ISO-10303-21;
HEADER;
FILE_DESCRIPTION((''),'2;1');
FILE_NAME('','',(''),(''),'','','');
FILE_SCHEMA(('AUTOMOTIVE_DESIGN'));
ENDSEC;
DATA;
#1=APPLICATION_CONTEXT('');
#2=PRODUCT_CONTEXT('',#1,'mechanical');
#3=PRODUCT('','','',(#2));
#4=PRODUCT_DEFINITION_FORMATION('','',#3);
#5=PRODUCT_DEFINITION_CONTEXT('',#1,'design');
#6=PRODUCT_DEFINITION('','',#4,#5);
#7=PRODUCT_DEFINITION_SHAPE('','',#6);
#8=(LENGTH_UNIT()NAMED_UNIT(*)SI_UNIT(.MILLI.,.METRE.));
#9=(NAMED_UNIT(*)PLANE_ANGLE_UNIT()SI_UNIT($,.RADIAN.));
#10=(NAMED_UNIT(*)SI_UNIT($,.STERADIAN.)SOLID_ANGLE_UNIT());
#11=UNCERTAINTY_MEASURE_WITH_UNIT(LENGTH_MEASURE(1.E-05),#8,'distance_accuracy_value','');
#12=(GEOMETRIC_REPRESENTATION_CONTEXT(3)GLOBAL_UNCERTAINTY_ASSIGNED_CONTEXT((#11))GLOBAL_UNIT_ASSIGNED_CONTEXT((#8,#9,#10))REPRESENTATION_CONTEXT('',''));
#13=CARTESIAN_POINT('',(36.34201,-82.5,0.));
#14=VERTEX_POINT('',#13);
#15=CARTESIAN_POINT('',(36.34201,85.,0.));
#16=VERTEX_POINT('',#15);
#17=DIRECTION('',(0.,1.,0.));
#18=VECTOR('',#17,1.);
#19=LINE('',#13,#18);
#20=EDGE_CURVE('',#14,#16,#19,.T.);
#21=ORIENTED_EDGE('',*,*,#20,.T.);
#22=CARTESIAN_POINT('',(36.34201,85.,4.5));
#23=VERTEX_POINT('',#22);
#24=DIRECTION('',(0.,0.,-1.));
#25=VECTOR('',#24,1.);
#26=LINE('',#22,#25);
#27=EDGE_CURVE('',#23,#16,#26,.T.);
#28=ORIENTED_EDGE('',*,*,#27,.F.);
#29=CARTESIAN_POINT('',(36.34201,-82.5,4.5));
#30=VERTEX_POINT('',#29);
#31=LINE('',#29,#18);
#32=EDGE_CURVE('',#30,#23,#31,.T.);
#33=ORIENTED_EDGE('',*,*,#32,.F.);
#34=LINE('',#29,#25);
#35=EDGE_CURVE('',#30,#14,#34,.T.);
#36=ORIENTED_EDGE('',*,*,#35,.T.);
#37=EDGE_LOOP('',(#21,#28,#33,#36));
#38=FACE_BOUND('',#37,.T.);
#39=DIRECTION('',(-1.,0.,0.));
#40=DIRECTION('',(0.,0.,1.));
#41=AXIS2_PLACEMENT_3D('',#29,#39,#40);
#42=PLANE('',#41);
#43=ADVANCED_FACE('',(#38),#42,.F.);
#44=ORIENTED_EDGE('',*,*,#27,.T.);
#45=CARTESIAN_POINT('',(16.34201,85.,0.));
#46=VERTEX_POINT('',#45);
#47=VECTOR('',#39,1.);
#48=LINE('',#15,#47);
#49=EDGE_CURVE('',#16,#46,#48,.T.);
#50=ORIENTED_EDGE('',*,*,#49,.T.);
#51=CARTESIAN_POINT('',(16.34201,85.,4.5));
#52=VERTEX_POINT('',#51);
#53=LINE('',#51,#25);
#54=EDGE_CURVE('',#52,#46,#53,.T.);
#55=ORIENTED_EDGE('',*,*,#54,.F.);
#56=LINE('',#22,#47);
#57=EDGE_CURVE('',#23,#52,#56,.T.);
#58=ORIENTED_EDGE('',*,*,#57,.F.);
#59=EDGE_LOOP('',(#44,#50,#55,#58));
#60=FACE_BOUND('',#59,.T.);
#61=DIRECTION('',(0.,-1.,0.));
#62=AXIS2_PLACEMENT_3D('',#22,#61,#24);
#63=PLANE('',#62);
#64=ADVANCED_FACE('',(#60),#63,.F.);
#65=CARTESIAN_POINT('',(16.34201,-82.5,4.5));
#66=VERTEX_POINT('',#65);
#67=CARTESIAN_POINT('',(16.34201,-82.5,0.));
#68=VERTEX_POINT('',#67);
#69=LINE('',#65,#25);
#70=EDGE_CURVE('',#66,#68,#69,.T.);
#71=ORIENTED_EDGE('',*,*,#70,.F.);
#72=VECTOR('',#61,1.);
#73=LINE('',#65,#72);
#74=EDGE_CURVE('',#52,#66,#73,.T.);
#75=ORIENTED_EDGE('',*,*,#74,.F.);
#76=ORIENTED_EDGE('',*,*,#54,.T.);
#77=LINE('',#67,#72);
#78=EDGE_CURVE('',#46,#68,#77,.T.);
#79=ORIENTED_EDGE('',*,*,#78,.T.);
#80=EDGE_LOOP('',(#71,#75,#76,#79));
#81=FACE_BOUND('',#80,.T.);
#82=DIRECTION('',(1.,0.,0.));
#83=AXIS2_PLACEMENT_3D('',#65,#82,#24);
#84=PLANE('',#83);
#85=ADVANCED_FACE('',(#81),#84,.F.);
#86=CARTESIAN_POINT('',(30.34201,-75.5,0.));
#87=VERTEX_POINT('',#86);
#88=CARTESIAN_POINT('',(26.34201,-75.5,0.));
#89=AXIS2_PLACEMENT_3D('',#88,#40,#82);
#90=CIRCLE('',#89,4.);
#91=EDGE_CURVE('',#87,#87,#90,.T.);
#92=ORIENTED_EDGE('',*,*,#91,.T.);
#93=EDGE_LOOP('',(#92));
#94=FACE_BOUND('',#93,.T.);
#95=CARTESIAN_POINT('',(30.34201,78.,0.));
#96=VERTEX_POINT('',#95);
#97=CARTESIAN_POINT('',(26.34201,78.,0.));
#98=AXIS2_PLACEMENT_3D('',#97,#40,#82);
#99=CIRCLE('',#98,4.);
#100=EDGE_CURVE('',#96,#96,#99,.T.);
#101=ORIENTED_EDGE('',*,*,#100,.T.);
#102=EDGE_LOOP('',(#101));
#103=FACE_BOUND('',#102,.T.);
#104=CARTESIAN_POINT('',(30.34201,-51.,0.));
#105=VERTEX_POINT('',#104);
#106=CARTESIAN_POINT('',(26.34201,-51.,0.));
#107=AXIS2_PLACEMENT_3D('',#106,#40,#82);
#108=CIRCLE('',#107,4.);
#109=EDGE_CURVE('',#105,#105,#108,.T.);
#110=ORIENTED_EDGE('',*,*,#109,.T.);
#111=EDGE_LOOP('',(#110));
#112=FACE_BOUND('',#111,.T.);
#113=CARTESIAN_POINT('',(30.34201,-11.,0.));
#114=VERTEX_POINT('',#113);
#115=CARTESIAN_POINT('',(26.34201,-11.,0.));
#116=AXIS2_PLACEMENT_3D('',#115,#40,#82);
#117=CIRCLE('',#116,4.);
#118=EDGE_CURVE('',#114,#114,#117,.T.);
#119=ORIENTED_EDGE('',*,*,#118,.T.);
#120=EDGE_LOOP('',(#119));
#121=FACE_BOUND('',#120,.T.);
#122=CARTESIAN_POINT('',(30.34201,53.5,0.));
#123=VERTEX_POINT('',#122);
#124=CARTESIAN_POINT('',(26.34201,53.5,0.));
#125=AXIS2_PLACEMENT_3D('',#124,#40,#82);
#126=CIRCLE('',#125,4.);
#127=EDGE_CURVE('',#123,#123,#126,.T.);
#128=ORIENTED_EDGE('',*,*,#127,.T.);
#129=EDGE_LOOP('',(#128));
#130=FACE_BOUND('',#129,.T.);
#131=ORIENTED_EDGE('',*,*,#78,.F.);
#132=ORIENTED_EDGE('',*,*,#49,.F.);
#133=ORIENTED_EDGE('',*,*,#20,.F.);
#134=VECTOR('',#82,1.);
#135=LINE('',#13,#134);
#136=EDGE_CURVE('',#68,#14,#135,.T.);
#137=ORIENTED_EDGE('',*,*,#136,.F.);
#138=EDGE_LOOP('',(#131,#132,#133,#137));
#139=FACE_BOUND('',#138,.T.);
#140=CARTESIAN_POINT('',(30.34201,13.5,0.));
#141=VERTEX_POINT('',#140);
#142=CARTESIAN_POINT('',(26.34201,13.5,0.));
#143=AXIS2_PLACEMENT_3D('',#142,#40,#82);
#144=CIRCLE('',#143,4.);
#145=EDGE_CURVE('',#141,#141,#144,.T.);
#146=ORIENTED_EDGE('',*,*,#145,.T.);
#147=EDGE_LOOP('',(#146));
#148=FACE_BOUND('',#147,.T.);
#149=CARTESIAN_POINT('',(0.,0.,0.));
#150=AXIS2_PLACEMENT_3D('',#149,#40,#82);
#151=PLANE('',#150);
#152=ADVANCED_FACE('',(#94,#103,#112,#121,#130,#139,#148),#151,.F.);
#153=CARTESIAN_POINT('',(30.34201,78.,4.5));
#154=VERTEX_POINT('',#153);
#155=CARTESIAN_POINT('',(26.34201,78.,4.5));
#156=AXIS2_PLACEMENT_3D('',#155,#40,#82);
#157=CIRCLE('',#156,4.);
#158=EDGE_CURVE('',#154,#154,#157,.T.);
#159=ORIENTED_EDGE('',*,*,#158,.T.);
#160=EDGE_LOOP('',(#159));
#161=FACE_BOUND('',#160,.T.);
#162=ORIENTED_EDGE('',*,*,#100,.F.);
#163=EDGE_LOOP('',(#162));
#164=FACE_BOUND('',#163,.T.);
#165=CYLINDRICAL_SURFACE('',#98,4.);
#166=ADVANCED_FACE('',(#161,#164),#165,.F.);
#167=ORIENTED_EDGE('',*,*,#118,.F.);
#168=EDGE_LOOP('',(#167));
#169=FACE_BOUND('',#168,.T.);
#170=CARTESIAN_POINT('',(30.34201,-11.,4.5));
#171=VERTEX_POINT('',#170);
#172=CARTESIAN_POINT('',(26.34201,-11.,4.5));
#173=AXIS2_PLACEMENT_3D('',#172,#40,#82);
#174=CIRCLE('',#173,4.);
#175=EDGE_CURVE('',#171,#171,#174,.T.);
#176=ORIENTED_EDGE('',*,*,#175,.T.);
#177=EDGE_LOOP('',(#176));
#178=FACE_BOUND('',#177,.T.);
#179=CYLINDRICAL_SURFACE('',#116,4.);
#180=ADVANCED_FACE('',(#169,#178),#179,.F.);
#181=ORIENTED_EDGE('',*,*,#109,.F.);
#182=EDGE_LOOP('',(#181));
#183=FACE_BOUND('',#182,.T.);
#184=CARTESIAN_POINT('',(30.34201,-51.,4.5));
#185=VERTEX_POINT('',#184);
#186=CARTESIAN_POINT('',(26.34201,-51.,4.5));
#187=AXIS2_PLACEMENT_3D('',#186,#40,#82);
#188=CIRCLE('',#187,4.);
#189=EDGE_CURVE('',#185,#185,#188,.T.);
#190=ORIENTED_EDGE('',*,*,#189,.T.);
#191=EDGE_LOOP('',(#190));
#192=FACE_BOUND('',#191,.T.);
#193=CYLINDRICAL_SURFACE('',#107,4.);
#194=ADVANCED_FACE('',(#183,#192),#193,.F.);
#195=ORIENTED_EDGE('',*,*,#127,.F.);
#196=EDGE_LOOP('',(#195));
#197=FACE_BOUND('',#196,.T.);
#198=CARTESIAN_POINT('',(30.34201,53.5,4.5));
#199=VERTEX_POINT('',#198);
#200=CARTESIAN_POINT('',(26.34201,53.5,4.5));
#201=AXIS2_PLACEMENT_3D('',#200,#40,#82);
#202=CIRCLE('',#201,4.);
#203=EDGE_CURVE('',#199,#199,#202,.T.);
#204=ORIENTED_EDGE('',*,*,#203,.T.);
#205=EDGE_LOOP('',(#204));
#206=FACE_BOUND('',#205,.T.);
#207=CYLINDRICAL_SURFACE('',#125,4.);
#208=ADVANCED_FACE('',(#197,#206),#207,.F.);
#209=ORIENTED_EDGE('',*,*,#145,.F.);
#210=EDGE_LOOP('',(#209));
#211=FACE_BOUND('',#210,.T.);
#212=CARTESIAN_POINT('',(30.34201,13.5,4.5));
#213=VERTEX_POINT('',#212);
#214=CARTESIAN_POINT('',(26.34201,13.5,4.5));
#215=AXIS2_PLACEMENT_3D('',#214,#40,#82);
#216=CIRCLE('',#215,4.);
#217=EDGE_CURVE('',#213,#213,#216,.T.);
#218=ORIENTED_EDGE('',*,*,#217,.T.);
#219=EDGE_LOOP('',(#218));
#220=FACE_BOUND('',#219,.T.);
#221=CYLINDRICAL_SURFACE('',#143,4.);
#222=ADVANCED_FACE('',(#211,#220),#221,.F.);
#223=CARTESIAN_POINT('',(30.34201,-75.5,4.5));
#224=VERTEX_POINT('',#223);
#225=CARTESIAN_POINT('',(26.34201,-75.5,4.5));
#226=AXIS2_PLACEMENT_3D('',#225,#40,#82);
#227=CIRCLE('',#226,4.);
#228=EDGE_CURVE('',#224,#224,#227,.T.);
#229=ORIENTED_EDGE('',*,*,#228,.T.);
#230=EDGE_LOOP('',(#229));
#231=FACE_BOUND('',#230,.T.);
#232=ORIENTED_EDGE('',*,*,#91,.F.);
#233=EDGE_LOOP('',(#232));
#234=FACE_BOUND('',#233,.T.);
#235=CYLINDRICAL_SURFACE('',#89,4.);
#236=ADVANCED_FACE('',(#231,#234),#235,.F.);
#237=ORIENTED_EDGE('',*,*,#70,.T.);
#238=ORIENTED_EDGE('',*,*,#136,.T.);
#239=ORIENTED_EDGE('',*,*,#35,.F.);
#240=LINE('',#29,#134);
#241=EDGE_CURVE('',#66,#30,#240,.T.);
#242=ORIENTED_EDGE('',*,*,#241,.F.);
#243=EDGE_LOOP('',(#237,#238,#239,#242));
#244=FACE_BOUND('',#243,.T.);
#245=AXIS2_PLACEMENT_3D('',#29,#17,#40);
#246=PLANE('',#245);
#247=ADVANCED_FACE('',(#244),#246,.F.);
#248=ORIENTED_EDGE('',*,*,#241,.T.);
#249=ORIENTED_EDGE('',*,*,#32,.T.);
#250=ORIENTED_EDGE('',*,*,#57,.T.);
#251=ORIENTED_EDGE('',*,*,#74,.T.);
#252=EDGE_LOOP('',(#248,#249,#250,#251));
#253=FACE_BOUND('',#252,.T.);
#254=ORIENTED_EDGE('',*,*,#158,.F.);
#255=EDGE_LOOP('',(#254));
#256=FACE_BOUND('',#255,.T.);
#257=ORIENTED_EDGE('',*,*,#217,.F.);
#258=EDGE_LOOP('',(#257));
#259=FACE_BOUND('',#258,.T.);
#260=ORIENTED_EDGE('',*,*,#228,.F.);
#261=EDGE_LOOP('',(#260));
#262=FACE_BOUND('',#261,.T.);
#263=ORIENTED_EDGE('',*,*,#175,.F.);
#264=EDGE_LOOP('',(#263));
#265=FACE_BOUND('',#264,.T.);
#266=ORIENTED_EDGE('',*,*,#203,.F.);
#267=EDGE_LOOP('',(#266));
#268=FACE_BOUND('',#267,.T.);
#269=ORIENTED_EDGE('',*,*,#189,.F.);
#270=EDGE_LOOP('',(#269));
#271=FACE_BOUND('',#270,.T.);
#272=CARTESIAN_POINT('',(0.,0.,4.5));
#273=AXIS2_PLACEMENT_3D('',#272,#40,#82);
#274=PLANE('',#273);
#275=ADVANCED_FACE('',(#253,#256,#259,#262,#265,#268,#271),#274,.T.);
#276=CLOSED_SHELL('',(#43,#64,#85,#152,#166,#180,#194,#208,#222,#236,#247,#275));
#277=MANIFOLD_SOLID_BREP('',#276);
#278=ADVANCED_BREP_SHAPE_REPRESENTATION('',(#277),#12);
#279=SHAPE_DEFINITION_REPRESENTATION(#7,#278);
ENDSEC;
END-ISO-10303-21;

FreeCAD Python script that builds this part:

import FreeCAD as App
import Part
import Sketcher

V = App.Vector

doc = App.newDocument("Part")
body = doc.addObject("PartDesign::Body", "Body")

# Sketch on XY plane
sketch1 = body.newObject("Sketcher::SketchObject", "Sketch")
sketch1.AttachmentSupport = (doc.getObject("XY_Plane"), [""])
sketch1.MapMode = "FlatFace"
sketch1.addGeometry([
    Part.LineSegment(V(16, 85, 0), V(16, -82, 0)),
    Part.LineSegment(V(16, -82, 0), V(36, -82, 0)),
    Part.LineSegment(V(36, -82, 0), V(36, 85, 0)),
    Part.LineSegment(V(36, 85, 0), V(16, 85, 0)),
], False)
sketch1.addConstraint([
    Sketcher.Constraint("Coincident", 0, 2, 1, 1),
    Sketcher.Constraint("Coincident", 1, 2, 2, 1),
    Sketcher.Constraint("Coincident", 2, 2, 3, 1),
    Sketcher.Constraint("Coincident", 3, 2, 0, 1),
    Sketcher.Constraint("Vertical", 0),
    Sketcher.Constraint("Horizontal", 1),
    Sketcher.Constraint("Vertical", 2),
    Sketcher.Constraint("Horizontal", 3),
    Sketcher.Constraint("DistanceX", 1, 1, 1, 2, 20.0),
    Sketcher.Constraint("DistanceY", 0, 2, 0, 1, 167.5),
    Sketcher.Constraint("DistanceY", -1, 1, 2, 2, 85.0),
    Sketcher.Constraint("DistanceX", -1, 1, 0, 2, 16.34201),
])
pad1 = body.newObject("PartDesign::Pad", "Pad")
pad1.Profile = sketch1
pad1.Length = 4.5

# Sketch on XY plane
sketch2 = body.newObject("Sketcher::SketchObject", "Sketch001")
sketch2.AttachmentSupport = (doc.getObject("XY_Plane"), [""])
sketch2.MapMode = "FlatFace"
sketch2.AttachmentOffset = App.Placement(V(0, 0, 4.5), App.Rotation())
sketch2.addGeometry([
    Part.Circle(V(26.3, -75.5, 0), V(0, 0, 1), 4),  # 0
    Part.Circle(V(26.3, -51, 0), V(0, 0, 1), 4),  # 1
    Part.Circle(V(26.3, -11, 0), V(0, 0, 1), 4),  # 2
    Part.Circle(V(26.3, 13.5, 0), V(0, 0, 1), 4),  # 3
    Part.Circle(V(26.3, 53.5, 0), V(0, 0, 1), 4),  # 4
    Part.Circle(V(26.3, 78, 0), V(0, 0, 1), 4),  # 5
], False)
sketch2.addConstraint([
    Sketcher.Constraint("Equal", 0, 1),
    Sketcher.Constraint("Equal", 1, 2),
    Sketcher.Constraint("Equal", 2, 3),
    Sketcher.Constraint("Equal", 3, 4),
    Sketcher.Constraint("Equal", 4, 5),
    Sketcher.Constraint("Vertical", 0, 3, 1, 3),
    Sketcher.Constraint("Vertical", 1, 3, 2, 3),
    Sketcher.Constraint("Vertical", 2, 3, 3, 3),
    Sketcher.Constraint("Vertical", 3, 3, 4, 3),
    Sketcher.Constraint("Vertical", 4, 3, 5, 3),
    Sketcher.Constraint("Diameter", 0, 8.0),
    Sketcher.Constraint("DistanceY", 1, 3, -1, 1, 51.0),
    Sketcher.Constraint("DistanceY", 2, 3, -1, 1, 11.0),
    Sketcher.Constraint("DistanceY", -1, 1, 5, 3, 78.0),
    Sketcher.Constraint("DistanceY", 0, 3, 3, 3, 89.0),
    Sketcher.Constraint("DistanceY", 3, 3, 4, 3, 40.0),
    Sketcher.Constraint("DistanceY", 0, 3, -1, 1, 75.5),
    Sketcher.Constraint("DistanceX", -1, 1, 0, 3, 26.34201),
])
pocket1 = body.newObject("PartDesign::Pocket", "Pocket")
pocket1.Profile = sketch2
pocket1.Length = 4.5

doc.recompute()
